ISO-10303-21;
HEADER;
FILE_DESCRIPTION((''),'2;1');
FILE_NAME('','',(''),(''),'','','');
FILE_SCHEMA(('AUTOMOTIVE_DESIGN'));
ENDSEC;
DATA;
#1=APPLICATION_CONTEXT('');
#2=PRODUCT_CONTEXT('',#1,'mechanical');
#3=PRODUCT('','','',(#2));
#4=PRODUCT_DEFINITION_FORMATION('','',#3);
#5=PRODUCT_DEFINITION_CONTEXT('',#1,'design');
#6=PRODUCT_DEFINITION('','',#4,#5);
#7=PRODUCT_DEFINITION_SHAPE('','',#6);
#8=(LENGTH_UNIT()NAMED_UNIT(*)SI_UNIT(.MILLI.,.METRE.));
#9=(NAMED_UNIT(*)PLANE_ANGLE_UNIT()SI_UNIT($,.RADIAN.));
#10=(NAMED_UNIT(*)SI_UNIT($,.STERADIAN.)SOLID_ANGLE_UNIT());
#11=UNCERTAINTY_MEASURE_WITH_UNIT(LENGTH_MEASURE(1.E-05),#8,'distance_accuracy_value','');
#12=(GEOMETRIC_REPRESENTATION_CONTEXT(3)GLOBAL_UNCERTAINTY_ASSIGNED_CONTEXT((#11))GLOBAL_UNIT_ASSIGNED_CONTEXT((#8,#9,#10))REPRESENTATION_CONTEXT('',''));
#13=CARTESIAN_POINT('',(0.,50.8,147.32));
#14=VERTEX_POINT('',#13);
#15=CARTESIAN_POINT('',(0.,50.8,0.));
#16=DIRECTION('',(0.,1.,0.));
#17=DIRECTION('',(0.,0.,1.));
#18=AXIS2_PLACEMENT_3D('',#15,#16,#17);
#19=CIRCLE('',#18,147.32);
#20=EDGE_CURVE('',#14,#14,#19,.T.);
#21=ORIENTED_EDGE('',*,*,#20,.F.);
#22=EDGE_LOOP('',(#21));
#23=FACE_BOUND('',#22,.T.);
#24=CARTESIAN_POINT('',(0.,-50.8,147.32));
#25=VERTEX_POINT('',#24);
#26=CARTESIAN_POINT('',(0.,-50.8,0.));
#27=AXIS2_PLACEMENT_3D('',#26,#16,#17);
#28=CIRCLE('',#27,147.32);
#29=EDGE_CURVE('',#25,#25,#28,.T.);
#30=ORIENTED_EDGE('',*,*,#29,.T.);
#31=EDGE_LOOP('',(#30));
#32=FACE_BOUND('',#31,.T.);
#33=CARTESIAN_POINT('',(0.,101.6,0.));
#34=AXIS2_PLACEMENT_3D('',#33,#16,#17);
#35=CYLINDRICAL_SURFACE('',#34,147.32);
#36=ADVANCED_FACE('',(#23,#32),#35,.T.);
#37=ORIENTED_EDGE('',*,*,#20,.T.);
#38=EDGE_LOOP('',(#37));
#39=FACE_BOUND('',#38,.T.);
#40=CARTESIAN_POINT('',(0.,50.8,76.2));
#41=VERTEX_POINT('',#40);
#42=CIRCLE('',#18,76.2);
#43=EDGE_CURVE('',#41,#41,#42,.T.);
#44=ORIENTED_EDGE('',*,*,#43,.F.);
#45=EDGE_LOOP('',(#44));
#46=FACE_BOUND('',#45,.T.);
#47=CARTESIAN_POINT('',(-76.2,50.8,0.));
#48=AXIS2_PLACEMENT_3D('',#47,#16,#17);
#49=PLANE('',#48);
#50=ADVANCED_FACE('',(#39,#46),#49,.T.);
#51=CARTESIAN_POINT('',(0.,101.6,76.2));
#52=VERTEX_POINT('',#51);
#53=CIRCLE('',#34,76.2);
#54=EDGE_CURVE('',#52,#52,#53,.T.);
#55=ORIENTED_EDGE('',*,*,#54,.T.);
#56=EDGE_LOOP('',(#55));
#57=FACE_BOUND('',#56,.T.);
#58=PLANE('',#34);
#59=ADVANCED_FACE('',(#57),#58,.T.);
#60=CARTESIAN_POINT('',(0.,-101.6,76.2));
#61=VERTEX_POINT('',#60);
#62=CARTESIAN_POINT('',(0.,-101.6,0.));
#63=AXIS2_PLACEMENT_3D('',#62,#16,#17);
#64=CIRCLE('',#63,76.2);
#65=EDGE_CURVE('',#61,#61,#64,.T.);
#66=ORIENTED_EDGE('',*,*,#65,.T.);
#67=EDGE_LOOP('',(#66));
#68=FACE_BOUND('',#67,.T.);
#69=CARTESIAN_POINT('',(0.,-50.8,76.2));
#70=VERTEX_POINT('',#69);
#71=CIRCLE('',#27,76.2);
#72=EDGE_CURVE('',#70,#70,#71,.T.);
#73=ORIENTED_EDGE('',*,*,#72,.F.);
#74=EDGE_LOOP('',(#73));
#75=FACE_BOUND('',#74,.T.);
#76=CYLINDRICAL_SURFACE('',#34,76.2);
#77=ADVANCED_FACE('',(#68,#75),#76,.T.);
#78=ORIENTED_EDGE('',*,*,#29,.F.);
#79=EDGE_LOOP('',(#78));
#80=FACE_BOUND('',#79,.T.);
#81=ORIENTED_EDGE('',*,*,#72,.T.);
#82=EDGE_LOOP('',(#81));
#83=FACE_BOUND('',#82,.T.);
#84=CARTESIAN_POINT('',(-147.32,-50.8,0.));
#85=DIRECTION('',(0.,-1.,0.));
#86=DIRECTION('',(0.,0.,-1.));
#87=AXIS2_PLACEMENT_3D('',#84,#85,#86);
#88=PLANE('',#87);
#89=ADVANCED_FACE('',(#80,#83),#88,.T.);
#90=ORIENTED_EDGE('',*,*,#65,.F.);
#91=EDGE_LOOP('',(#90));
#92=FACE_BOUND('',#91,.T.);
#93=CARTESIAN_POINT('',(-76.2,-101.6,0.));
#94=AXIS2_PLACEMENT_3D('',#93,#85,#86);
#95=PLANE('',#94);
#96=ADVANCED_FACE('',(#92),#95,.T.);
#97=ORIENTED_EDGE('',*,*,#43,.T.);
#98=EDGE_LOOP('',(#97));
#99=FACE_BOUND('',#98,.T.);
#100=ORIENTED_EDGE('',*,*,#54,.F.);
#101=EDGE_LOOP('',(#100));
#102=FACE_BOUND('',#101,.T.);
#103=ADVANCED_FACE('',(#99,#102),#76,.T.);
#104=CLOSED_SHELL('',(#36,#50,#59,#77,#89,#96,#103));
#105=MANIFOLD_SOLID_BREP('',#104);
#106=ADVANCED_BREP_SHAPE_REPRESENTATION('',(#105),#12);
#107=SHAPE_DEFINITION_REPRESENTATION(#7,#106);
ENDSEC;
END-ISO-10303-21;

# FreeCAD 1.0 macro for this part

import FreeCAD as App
import Part
import Sketcher

V = App.Vector
Q = App.Units.Quantity


def add_polygon(sketch, points):
    """Adds a closed chain of lines whose ends are joined by coincident constraints."""
    first, n = sketch.GeometryCount, len(points)
    for a, b in zip(points, points[1:] + points[:1]):
        sketch.addGeometry(Part.LineSegment(App.Vector(*a, 0), App.Vector(*b, 0)), False)
    for i in range(n):
        sketch.addConstraint(Sketcher.Constraint("Coincident", first + i, 2, first + (i + 1) % n, 1))

doc = App.newDocument("Part")
body = doc.addObject("PartDesign::Body", "Body")

# Sketch on XY plane
sketch1 = body.newObject("Sketcher::SketchObject", "Sketch")
sketch1.AttachmentSupport = (doc.getObject("XY_Plane"), [""])
sketch1.MapMode = "FlatFace"
add_polygon(sketch1, [(0, -101.6), (0, 101.6), (-76.2, 101.6), (-76.2, 50.8), (-147.32, 50.8), (-147.32, -50.8), (-76.2, -50.8), (-76.2, -101.6)])  # lines 0-7
sketch1.addConstraint([
    Sketcher.Constraint("Vertical", 0),
    Sketcher.Constraint("Horizontal", 1),
    Sketcher.Constraint("Vertical", 2),
    Sketcher.Constraint("Horizontal", 3),
    Sketcher.Constraint("Vertical", 4),
    Sketcher.Constraint("Horizontal", 5),
    Sketcher.Constraint("Vertical", 6),
    Sketcher.Constraint("Horizontal", 7),
    Sketcher.Constraint("Symmetric", 0, 2, 7, 2, -1, 1),
    Sketcher.Constraint("Symmetric", 2, 2, 5, 2, -1),
    Sketcher.Constraint("DistanceX", 1, 2, 1, 1, Q("3 in")),
    Sketcher.Constraint("DistanceY", 0, 1, 0, 2, Q("8 in")),
    Sketcher.Constraint("DistanceY", 2, 2, 2, 1, Q("2 in")),
    Sketcher.Constraint("DistanceX", 3, 2, 3, 1, Q("2.8 in")),
])
revolution = body.newObject("PartDesign::Revolution", "Revolution")
revolution.Profile = sketch1
revolution.ReferenceAxis = (sketch1, ["V_Axis"])
revolution.Angle = 360

doc.recompute()
